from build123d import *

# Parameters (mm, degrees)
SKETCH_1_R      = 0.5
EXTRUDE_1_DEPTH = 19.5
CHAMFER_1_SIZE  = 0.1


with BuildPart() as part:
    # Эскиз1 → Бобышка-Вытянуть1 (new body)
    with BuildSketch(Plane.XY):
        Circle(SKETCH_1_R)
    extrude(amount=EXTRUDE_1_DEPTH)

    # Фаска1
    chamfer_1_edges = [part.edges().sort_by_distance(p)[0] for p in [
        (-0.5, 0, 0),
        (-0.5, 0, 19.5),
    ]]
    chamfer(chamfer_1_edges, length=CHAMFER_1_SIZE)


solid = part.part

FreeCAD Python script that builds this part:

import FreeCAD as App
import Part
import Sketcher
Q = App.Units.Quantity


def edges_at(feature, points):
    """Names of the edges that pass closest to the given points."""
    edges = feature.Shape.Edges
    near = lambda p: min(range(len(edges)), key=lambda i: edges[i].distToShape(Part.Vertex(*p))[0])
    return sorted({f"Edge{near(p) + 1}" for p in points})

doc = App.newDocument("Part")
body = doc.addObject("PartDesign::Body", "Body")

# Sketch on XY plane
sketch1 = doc.addObject("Sketcher::SketchObject", "Sketch")
body.addObject(sketch1)
sketch1.AttachmentSupport = (doc.XY_Plane, [""])
sketch1.MapMode = "FlatFace"
sketch1.addGeometry(Part.Circle(App.Vector(0, 0, 0), App.Vector(0, 0, 1), 0.5), False)
sketch1.addConstraint(Sketcher.Constraint("Coincident", 0, 3, -1, 1))
sketch1.addConstraint(Sketcher.Constraint("Diameter", 0, Q("1 mm")))
pad1 = doc.addObject("PartDesign::Pad", "Pad")
body.addObject(pad1)
pad1.Profile = sketch1
pad1.Length = 19.5
doc.recompute()

chamfer = doc.addObject("PartDesign::Chamfer", "Chamfer")
body.addObject(chamfer)
chamfer.Base = (pad1, edges_at(pad1, [(-0.5, 0, 0), (-0.5, 0, 19.5)]))
chamfer.Size = 0.1

doc.recompute()
